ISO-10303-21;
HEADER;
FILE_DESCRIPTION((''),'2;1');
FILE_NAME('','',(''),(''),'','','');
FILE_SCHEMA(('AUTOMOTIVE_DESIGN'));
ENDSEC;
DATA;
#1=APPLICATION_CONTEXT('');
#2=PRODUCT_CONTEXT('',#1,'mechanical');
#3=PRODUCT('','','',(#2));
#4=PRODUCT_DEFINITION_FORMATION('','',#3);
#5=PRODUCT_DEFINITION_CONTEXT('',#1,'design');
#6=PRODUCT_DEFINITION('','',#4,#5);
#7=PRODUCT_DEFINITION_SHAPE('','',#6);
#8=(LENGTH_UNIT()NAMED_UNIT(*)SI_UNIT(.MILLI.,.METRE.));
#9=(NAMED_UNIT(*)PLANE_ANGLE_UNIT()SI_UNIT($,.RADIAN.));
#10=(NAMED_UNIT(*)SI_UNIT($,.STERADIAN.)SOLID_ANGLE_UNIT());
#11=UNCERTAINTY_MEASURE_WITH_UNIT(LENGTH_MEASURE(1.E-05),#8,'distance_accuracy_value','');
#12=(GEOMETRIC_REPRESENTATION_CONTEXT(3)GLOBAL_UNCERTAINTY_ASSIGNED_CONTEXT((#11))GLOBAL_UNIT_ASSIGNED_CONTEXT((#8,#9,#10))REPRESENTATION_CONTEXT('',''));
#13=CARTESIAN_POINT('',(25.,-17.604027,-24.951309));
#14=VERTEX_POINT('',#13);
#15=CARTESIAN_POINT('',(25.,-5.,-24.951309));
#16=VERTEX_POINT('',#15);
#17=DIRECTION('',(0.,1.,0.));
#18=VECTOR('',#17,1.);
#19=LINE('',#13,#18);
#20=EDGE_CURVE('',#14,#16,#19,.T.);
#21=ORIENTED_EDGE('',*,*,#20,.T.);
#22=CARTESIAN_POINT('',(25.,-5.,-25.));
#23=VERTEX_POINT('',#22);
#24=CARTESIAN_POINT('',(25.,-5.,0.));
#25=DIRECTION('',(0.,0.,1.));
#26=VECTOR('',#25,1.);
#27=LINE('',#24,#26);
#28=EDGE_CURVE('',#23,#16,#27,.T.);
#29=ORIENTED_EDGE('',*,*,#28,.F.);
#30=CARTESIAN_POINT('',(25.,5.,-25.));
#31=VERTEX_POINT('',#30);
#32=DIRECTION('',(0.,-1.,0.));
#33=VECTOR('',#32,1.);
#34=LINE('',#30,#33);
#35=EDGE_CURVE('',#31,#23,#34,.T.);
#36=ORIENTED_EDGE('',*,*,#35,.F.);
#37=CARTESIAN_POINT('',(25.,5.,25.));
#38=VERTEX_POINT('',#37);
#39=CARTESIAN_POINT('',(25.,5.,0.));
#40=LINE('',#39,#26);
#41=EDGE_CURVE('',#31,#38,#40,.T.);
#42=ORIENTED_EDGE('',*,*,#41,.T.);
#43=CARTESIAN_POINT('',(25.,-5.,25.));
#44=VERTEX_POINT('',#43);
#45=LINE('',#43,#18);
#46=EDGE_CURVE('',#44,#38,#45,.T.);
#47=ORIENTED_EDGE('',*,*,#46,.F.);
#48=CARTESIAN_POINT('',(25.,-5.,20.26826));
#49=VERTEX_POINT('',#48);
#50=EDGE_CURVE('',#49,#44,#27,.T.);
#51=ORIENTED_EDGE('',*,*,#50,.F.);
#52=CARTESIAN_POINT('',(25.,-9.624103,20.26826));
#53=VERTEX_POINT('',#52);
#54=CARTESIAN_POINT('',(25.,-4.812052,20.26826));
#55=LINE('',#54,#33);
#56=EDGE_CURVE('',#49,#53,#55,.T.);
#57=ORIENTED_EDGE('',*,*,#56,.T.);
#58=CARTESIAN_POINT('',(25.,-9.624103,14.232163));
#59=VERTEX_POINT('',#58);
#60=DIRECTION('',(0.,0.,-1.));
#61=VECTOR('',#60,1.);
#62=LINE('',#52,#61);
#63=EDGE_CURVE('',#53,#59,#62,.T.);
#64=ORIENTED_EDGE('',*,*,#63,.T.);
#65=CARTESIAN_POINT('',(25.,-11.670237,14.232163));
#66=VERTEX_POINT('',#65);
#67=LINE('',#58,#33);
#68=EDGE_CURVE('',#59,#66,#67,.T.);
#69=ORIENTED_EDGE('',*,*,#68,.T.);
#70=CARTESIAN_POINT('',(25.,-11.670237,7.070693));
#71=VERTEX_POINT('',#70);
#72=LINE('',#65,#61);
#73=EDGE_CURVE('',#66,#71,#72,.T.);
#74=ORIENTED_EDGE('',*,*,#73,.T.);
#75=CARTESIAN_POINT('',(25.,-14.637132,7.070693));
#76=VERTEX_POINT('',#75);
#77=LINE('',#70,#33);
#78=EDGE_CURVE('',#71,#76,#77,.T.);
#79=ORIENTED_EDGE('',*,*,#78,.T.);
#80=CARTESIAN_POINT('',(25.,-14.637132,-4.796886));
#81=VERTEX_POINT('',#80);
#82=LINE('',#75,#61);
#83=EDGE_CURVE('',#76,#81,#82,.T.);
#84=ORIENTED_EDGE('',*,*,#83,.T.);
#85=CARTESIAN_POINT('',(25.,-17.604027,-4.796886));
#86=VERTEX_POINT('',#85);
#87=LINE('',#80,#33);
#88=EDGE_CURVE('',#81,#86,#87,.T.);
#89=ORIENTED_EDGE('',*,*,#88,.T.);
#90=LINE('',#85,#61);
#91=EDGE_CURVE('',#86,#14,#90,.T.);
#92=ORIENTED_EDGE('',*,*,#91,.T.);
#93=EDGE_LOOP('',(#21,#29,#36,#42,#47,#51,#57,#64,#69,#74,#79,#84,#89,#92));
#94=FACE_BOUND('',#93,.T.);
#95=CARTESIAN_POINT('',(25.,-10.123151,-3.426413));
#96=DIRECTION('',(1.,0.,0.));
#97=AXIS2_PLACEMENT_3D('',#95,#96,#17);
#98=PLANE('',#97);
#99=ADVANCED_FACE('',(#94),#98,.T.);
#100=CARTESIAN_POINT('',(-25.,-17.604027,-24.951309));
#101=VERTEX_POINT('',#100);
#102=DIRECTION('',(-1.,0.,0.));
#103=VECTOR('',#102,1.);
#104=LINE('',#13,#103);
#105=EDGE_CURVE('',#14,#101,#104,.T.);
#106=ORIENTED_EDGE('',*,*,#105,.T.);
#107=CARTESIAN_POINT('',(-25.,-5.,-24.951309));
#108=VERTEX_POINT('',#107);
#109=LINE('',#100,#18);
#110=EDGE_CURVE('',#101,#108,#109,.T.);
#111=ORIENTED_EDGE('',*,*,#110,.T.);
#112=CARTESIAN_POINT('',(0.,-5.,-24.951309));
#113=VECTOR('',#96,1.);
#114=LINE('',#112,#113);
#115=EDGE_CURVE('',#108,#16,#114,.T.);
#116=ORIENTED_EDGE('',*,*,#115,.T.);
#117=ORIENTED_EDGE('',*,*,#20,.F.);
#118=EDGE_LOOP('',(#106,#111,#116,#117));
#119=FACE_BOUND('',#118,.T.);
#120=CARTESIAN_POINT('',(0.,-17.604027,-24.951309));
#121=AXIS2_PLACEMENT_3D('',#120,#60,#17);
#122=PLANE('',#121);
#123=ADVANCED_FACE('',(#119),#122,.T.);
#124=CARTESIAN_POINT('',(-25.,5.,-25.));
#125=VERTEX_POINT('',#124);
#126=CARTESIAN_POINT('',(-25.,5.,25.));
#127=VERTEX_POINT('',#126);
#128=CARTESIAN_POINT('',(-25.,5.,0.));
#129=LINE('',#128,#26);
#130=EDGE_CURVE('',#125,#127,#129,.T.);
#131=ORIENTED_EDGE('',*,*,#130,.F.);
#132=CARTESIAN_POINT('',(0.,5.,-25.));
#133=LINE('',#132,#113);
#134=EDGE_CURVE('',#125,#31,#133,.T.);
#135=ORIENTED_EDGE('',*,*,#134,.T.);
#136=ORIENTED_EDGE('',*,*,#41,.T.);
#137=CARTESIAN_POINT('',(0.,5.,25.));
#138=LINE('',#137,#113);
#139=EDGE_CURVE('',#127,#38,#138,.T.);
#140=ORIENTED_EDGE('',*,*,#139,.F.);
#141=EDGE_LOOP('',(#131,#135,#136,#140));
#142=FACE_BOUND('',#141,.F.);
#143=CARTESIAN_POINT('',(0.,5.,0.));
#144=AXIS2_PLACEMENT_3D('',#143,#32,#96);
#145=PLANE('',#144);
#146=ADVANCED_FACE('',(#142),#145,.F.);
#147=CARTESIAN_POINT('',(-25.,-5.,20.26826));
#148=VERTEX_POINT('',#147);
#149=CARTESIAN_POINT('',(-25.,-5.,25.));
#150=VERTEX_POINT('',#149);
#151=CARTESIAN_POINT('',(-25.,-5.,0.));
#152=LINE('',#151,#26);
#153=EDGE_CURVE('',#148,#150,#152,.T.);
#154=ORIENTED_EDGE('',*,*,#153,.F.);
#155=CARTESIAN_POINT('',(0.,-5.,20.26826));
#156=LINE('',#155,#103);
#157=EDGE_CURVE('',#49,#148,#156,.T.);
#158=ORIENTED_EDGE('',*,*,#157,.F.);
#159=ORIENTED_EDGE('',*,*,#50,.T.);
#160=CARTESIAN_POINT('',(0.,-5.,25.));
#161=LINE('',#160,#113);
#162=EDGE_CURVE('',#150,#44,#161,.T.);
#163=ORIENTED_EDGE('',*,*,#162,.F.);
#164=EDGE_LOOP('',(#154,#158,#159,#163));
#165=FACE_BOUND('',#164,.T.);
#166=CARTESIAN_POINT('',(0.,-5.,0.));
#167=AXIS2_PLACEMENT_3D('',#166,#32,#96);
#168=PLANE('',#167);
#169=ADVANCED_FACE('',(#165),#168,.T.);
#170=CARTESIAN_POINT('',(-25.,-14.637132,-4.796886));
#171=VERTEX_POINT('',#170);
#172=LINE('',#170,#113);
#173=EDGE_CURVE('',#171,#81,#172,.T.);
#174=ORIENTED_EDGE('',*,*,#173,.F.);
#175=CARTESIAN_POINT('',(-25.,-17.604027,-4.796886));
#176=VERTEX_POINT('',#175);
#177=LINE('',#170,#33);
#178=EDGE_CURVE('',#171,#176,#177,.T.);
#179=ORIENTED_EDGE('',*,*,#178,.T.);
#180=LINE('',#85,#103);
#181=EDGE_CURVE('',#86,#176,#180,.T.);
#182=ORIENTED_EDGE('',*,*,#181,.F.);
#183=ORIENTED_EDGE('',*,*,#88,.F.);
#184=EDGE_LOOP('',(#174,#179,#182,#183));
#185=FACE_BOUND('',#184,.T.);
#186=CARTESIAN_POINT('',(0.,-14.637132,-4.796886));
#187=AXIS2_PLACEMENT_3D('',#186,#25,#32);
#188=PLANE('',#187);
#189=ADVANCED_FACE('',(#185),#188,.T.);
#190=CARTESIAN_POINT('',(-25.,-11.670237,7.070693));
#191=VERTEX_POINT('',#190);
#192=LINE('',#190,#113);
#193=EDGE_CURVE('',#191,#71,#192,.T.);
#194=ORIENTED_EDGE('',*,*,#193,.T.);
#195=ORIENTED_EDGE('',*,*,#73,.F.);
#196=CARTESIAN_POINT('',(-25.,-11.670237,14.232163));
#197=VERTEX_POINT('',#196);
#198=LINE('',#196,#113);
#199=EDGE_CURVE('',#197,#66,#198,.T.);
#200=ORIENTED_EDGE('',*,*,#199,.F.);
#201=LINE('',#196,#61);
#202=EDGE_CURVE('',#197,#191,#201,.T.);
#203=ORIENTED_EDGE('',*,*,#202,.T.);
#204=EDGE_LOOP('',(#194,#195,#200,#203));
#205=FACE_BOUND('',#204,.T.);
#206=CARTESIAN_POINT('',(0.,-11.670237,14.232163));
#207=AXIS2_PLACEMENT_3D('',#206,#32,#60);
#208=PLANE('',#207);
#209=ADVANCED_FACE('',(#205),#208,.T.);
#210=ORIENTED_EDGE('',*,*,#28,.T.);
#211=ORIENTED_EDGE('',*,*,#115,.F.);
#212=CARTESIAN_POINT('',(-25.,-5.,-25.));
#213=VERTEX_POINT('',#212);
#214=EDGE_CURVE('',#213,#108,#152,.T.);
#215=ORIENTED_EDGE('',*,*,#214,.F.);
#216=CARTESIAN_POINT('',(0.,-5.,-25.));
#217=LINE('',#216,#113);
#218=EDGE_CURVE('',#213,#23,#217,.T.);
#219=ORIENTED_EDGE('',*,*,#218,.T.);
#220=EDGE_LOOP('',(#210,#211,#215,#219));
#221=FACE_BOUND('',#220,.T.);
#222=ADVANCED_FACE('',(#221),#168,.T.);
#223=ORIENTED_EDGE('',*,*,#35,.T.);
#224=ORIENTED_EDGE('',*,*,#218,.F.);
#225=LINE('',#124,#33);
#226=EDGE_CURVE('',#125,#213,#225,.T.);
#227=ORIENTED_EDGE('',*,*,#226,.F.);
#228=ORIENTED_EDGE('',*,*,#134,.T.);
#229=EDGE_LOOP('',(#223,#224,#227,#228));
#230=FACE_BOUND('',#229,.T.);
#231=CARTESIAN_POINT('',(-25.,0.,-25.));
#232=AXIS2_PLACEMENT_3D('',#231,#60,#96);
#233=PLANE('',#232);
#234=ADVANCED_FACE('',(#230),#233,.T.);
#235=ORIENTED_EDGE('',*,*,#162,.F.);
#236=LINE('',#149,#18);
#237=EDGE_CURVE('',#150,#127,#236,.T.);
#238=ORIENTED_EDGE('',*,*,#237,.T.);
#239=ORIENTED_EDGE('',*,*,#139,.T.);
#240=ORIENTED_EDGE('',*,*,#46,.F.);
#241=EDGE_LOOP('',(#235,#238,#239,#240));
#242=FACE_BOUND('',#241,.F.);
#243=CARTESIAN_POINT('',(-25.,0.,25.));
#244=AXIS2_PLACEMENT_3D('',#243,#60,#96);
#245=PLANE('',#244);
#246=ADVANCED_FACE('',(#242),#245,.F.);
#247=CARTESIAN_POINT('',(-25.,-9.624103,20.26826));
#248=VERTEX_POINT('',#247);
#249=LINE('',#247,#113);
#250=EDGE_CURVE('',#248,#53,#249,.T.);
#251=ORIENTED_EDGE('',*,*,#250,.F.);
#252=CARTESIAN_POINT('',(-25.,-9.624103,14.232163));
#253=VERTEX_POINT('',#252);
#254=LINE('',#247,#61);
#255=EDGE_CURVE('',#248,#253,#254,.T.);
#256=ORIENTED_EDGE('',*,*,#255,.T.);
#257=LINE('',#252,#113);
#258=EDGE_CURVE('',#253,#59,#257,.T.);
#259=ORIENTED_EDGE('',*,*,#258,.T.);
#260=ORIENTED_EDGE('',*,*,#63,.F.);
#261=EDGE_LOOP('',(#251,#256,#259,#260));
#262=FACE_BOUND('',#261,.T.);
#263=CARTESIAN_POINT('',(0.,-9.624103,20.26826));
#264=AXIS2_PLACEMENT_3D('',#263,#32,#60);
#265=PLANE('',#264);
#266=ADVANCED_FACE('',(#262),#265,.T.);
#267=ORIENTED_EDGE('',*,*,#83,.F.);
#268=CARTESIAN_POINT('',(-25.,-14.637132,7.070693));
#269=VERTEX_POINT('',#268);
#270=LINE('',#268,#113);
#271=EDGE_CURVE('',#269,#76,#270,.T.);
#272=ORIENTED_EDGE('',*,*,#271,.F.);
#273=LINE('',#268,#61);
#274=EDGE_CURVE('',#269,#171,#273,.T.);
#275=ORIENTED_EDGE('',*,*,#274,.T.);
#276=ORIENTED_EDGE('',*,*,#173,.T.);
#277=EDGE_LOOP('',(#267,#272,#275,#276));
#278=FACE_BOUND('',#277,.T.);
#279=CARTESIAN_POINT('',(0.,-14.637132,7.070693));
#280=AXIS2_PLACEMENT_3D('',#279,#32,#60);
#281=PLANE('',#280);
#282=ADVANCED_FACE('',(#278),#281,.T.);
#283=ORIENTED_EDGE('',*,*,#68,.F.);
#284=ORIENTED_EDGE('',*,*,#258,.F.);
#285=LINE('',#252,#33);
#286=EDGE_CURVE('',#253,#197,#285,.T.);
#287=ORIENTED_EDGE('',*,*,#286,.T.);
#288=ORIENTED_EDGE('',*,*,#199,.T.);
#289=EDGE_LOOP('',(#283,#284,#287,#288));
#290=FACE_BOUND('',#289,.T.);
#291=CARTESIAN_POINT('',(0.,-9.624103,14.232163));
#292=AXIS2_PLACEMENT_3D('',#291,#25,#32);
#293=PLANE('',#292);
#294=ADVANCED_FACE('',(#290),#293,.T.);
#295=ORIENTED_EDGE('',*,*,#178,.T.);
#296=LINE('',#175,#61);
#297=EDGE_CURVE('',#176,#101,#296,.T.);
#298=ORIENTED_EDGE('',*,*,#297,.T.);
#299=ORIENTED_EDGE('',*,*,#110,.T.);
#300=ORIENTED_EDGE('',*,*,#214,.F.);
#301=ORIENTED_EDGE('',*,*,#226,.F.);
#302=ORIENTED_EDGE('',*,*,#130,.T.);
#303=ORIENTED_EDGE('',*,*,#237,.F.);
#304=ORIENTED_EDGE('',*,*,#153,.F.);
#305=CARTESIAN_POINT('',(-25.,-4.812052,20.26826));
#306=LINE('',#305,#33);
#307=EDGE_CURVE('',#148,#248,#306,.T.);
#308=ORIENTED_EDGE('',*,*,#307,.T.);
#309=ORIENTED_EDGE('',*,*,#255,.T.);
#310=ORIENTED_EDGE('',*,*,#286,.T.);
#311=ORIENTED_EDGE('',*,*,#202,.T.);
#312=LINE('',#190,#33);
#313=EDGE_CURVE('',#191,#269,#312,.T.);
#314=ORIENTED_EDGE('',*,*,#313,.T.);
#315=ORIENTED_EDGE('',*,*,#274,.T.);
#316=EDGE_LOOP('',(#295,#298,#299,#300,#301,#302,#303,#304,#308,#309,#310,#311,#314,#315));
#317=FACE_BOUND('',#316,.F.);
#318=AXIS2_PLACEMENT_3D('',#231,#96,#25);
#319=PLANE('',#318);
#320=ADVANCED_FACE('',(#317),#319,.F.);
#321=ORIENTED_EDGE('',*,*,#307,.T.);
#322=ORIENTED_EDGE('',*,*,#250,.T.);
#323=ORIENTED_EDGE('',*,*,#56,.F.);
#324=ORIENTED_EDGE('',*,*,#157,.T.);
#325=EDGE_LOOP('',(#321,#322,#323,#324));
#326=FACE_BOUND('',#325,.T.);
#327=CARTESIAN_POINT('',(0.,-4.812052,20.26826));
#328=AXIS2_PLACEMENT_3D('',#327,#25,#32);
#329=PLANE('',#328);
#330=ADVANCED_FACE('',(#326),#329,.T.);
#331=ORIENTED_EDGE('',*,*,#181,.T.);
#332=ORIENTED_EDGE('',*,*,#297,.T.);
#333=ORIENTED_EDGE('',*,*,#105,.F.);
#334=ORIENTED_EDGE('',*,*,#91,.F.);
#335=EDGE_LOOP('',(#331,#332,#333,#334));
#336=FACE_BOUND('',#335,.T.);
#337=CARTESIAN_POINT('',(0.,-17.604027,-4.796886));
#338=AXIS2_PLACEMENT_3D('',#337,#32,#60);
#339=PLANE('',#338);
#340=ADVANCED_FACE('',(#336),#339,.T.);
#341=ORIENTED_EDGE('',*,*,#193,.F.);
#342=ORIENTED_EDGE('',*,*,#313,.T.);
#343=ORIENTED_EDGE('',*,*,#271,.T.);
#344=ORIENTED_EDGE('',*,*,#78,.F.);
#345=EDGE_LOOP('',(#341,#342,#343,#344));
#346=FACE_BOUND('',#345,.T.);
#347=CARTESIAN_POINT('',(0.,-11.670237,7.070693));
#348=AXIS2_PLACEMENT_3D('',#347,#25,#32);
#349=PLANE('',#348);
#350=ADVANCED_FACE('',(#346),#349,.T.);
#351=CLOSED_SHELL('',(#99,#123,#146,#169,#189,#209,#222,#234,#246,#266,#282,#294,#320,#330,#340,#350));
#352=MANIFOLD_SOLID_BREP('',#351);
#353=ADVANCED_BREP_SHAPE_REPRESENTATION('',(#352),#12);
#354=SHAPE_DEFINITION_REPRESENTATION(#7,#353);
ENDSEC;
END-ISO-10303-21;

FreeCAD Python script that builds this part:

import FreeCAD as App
import Part
import Sketcher

V = App.Vector

doc = App.newDocument("Part")
body = doc.addObject("PartDesign::Body", "Body")

sketch1 = body.newObject("Sketcher::SketchObject", "Sketch")
sketch1.AttachmentSupport = (doc.getObject("XZ_Plane"), [""])
sketch1.MapMode = "FlatFace"
sketch1.addGeometry([
    Part.LineSegment(V(-25, 25, 0), V(-25, -25, 0)),
    Part.LineSegment(V(-25, -25, 0), V(25, -25, 0)),
    Part.LineSegment(V(25, -25, 0), V(25, 25, 0)),
    Part.LineSegment(V(25, 25, 0), V(-25, 25, 0)),
], False)
sketch1.addConstraint([
    Sketcher.Constraint("Coincident", 0, 2, 1, 1),
    Sketcher.Constraint("Coincident", 1, 2, 2, 1),
    Sketcher.Constraint("Coincident", 2, 2, 3, 1),
    Sketcher.Constraint("Coincident", 3, 2, 0, 1),
    Sketcher.Constraint("Vertical", 0),
    Sketcher.Constraint("Horizontal", 1),
    Sketcher.Constraint("Vertical", 2),
    Sketcher.Constraint("Horizontal", 3),
    Sketcher.Constraint("Symmetric", 0, 2, 2, 2, -1, 1),
    Sketcher.Constraint("Equal", 3, 0),
    Sketcher.Constraint("DistanceX", 1, 1, 1, 2, 50.0),
])
pad1 = body.newObject("PartDesign::Pad", "Pad")
pad1.Profile = sketch1
pad1.Length = 10
pad1.Midplane = True

sketch2 = body.newObject("Sketcher::SketchObject", "Sketch001")
sketch2.AttachmentSupport = (doc.getObject("YZ_Plane"), [""])
sketch2.MapMode = "FlatFace"
sketch2.addGeometry([
    Part.LineSegment(V(-4.8, -25, 0), V(-4.8, 20.3, 0)),
    Part.LineSegment(V(-4.8, 20.3, 0), V(-9.6, 20.3, 0)),
    Part.LineSegment(V(-9.6, 20.3, 0), V(-9.6, 14.2, 0)),
    Part.LineSegment(V(-9.6, 14.2, 0), V(-11.7, 14.2, 0)),
    Part.LineSegment(V(-11.7, 14.2, 0), V(-11.7, 7.1, 0)),
    Part.LineSegment(V(-11.7, 7.1, 0), V(-14.6, 7.1, 0)),
    Part.LineSegment(V(-14.6, 7.1, 0), V(-14.6, -4.8, 0)),
    Part.LineSegment(V(-14.6, -4.8, 0), V(-17.6, -4.8, 0)),
    Part.LineSegment(V(-17.6, -4.8, 0), V(-17.6, -25, 0)),
    Part.LineSegment(V(-17.6, -25, 0), V(-4.8, -25, 0)),
], False)
sketch2.addConstraint([
    Sketcher.Constraint("Coincident", 0, 2, 1, 1),
    Sketcher.Constraint("Coincident", 1, 2, 2, 1),
    Sketcher.Constraint("Coincident", 2, 2, 3, 1),
    Sketcher.Constraint("Coincident", 3, 2, 4, 1),
    Sketcher.Constraint("Coincident", 4, 2, 5, 1),
    Sketcher.Constraint("Coincident", 5, 2, 6, 1),
    Sketcher.Constraint("Coincident", 6, 2, 7, 1),
    Sketcher.Constraint("Coincident", 7, 2, 8, 1),
    Sketcher.Constraint("Coincident", 8, 2, 9, 1),
    Sketcher.Constraint("Coincident", 9, 2, 0, 1),
    Sketcher.Constraint("Vertical", 0),
    Sketcher.Constraint("Horizontal", 1),
    Sketcher.Constraint("Vertical", 2),
    Sketcher.Constraint("Horizontal", 3),
    Sketcher.Constraint("Vertical", 4),
    Sketcher.Constraint("Horizontal", 5),
    Sketcher.Constraint("Vertical", 6),
    Sketcher.Constraint("Horizontal", 7),
    Sketcher.Constraint("Vertical", 8),
    Sketcher.Constraint("Horizontal", 9),
    Sketcher.Constraint("Equal", 5, 7),
    Sketcher.Constraint("DistanceX", 1, 2, 1, 1, 4.812051),
    Sketcher.Constraint("DistanceY", 0, 1, 0, 2, 45.219569),
    Sketcher.Constraint("DistanceY", 4, 2, 4, 1, 7.16147),
    Sketcher.Constraint("DistanceY", 6, 2, 6, 1, 11.867579),
    Sketcher.Constraint("DistanceX", 3, 2, 3, 1, 2.046134),
    Sketcher.Constraint("DistanceX", 5, 2, 5, 1, 2.966895),
    Sketcher.Constraint("DistanceY", 2, 2, 2, 1, 6.036097),
    Sketcher.Constraint("DistanceY", -1, 1, 0, 2, 20.26826),
    Sketcher.Constraint("DistanceX", 5, 2, -1, 1, 14.637132),
])
pad2 = body.newObject("PartDesign::Pad", "Pad001")
pad2.Profile = sketch2
pad2.Length = 50
pad2.Midplane = True

doc.recompute()
